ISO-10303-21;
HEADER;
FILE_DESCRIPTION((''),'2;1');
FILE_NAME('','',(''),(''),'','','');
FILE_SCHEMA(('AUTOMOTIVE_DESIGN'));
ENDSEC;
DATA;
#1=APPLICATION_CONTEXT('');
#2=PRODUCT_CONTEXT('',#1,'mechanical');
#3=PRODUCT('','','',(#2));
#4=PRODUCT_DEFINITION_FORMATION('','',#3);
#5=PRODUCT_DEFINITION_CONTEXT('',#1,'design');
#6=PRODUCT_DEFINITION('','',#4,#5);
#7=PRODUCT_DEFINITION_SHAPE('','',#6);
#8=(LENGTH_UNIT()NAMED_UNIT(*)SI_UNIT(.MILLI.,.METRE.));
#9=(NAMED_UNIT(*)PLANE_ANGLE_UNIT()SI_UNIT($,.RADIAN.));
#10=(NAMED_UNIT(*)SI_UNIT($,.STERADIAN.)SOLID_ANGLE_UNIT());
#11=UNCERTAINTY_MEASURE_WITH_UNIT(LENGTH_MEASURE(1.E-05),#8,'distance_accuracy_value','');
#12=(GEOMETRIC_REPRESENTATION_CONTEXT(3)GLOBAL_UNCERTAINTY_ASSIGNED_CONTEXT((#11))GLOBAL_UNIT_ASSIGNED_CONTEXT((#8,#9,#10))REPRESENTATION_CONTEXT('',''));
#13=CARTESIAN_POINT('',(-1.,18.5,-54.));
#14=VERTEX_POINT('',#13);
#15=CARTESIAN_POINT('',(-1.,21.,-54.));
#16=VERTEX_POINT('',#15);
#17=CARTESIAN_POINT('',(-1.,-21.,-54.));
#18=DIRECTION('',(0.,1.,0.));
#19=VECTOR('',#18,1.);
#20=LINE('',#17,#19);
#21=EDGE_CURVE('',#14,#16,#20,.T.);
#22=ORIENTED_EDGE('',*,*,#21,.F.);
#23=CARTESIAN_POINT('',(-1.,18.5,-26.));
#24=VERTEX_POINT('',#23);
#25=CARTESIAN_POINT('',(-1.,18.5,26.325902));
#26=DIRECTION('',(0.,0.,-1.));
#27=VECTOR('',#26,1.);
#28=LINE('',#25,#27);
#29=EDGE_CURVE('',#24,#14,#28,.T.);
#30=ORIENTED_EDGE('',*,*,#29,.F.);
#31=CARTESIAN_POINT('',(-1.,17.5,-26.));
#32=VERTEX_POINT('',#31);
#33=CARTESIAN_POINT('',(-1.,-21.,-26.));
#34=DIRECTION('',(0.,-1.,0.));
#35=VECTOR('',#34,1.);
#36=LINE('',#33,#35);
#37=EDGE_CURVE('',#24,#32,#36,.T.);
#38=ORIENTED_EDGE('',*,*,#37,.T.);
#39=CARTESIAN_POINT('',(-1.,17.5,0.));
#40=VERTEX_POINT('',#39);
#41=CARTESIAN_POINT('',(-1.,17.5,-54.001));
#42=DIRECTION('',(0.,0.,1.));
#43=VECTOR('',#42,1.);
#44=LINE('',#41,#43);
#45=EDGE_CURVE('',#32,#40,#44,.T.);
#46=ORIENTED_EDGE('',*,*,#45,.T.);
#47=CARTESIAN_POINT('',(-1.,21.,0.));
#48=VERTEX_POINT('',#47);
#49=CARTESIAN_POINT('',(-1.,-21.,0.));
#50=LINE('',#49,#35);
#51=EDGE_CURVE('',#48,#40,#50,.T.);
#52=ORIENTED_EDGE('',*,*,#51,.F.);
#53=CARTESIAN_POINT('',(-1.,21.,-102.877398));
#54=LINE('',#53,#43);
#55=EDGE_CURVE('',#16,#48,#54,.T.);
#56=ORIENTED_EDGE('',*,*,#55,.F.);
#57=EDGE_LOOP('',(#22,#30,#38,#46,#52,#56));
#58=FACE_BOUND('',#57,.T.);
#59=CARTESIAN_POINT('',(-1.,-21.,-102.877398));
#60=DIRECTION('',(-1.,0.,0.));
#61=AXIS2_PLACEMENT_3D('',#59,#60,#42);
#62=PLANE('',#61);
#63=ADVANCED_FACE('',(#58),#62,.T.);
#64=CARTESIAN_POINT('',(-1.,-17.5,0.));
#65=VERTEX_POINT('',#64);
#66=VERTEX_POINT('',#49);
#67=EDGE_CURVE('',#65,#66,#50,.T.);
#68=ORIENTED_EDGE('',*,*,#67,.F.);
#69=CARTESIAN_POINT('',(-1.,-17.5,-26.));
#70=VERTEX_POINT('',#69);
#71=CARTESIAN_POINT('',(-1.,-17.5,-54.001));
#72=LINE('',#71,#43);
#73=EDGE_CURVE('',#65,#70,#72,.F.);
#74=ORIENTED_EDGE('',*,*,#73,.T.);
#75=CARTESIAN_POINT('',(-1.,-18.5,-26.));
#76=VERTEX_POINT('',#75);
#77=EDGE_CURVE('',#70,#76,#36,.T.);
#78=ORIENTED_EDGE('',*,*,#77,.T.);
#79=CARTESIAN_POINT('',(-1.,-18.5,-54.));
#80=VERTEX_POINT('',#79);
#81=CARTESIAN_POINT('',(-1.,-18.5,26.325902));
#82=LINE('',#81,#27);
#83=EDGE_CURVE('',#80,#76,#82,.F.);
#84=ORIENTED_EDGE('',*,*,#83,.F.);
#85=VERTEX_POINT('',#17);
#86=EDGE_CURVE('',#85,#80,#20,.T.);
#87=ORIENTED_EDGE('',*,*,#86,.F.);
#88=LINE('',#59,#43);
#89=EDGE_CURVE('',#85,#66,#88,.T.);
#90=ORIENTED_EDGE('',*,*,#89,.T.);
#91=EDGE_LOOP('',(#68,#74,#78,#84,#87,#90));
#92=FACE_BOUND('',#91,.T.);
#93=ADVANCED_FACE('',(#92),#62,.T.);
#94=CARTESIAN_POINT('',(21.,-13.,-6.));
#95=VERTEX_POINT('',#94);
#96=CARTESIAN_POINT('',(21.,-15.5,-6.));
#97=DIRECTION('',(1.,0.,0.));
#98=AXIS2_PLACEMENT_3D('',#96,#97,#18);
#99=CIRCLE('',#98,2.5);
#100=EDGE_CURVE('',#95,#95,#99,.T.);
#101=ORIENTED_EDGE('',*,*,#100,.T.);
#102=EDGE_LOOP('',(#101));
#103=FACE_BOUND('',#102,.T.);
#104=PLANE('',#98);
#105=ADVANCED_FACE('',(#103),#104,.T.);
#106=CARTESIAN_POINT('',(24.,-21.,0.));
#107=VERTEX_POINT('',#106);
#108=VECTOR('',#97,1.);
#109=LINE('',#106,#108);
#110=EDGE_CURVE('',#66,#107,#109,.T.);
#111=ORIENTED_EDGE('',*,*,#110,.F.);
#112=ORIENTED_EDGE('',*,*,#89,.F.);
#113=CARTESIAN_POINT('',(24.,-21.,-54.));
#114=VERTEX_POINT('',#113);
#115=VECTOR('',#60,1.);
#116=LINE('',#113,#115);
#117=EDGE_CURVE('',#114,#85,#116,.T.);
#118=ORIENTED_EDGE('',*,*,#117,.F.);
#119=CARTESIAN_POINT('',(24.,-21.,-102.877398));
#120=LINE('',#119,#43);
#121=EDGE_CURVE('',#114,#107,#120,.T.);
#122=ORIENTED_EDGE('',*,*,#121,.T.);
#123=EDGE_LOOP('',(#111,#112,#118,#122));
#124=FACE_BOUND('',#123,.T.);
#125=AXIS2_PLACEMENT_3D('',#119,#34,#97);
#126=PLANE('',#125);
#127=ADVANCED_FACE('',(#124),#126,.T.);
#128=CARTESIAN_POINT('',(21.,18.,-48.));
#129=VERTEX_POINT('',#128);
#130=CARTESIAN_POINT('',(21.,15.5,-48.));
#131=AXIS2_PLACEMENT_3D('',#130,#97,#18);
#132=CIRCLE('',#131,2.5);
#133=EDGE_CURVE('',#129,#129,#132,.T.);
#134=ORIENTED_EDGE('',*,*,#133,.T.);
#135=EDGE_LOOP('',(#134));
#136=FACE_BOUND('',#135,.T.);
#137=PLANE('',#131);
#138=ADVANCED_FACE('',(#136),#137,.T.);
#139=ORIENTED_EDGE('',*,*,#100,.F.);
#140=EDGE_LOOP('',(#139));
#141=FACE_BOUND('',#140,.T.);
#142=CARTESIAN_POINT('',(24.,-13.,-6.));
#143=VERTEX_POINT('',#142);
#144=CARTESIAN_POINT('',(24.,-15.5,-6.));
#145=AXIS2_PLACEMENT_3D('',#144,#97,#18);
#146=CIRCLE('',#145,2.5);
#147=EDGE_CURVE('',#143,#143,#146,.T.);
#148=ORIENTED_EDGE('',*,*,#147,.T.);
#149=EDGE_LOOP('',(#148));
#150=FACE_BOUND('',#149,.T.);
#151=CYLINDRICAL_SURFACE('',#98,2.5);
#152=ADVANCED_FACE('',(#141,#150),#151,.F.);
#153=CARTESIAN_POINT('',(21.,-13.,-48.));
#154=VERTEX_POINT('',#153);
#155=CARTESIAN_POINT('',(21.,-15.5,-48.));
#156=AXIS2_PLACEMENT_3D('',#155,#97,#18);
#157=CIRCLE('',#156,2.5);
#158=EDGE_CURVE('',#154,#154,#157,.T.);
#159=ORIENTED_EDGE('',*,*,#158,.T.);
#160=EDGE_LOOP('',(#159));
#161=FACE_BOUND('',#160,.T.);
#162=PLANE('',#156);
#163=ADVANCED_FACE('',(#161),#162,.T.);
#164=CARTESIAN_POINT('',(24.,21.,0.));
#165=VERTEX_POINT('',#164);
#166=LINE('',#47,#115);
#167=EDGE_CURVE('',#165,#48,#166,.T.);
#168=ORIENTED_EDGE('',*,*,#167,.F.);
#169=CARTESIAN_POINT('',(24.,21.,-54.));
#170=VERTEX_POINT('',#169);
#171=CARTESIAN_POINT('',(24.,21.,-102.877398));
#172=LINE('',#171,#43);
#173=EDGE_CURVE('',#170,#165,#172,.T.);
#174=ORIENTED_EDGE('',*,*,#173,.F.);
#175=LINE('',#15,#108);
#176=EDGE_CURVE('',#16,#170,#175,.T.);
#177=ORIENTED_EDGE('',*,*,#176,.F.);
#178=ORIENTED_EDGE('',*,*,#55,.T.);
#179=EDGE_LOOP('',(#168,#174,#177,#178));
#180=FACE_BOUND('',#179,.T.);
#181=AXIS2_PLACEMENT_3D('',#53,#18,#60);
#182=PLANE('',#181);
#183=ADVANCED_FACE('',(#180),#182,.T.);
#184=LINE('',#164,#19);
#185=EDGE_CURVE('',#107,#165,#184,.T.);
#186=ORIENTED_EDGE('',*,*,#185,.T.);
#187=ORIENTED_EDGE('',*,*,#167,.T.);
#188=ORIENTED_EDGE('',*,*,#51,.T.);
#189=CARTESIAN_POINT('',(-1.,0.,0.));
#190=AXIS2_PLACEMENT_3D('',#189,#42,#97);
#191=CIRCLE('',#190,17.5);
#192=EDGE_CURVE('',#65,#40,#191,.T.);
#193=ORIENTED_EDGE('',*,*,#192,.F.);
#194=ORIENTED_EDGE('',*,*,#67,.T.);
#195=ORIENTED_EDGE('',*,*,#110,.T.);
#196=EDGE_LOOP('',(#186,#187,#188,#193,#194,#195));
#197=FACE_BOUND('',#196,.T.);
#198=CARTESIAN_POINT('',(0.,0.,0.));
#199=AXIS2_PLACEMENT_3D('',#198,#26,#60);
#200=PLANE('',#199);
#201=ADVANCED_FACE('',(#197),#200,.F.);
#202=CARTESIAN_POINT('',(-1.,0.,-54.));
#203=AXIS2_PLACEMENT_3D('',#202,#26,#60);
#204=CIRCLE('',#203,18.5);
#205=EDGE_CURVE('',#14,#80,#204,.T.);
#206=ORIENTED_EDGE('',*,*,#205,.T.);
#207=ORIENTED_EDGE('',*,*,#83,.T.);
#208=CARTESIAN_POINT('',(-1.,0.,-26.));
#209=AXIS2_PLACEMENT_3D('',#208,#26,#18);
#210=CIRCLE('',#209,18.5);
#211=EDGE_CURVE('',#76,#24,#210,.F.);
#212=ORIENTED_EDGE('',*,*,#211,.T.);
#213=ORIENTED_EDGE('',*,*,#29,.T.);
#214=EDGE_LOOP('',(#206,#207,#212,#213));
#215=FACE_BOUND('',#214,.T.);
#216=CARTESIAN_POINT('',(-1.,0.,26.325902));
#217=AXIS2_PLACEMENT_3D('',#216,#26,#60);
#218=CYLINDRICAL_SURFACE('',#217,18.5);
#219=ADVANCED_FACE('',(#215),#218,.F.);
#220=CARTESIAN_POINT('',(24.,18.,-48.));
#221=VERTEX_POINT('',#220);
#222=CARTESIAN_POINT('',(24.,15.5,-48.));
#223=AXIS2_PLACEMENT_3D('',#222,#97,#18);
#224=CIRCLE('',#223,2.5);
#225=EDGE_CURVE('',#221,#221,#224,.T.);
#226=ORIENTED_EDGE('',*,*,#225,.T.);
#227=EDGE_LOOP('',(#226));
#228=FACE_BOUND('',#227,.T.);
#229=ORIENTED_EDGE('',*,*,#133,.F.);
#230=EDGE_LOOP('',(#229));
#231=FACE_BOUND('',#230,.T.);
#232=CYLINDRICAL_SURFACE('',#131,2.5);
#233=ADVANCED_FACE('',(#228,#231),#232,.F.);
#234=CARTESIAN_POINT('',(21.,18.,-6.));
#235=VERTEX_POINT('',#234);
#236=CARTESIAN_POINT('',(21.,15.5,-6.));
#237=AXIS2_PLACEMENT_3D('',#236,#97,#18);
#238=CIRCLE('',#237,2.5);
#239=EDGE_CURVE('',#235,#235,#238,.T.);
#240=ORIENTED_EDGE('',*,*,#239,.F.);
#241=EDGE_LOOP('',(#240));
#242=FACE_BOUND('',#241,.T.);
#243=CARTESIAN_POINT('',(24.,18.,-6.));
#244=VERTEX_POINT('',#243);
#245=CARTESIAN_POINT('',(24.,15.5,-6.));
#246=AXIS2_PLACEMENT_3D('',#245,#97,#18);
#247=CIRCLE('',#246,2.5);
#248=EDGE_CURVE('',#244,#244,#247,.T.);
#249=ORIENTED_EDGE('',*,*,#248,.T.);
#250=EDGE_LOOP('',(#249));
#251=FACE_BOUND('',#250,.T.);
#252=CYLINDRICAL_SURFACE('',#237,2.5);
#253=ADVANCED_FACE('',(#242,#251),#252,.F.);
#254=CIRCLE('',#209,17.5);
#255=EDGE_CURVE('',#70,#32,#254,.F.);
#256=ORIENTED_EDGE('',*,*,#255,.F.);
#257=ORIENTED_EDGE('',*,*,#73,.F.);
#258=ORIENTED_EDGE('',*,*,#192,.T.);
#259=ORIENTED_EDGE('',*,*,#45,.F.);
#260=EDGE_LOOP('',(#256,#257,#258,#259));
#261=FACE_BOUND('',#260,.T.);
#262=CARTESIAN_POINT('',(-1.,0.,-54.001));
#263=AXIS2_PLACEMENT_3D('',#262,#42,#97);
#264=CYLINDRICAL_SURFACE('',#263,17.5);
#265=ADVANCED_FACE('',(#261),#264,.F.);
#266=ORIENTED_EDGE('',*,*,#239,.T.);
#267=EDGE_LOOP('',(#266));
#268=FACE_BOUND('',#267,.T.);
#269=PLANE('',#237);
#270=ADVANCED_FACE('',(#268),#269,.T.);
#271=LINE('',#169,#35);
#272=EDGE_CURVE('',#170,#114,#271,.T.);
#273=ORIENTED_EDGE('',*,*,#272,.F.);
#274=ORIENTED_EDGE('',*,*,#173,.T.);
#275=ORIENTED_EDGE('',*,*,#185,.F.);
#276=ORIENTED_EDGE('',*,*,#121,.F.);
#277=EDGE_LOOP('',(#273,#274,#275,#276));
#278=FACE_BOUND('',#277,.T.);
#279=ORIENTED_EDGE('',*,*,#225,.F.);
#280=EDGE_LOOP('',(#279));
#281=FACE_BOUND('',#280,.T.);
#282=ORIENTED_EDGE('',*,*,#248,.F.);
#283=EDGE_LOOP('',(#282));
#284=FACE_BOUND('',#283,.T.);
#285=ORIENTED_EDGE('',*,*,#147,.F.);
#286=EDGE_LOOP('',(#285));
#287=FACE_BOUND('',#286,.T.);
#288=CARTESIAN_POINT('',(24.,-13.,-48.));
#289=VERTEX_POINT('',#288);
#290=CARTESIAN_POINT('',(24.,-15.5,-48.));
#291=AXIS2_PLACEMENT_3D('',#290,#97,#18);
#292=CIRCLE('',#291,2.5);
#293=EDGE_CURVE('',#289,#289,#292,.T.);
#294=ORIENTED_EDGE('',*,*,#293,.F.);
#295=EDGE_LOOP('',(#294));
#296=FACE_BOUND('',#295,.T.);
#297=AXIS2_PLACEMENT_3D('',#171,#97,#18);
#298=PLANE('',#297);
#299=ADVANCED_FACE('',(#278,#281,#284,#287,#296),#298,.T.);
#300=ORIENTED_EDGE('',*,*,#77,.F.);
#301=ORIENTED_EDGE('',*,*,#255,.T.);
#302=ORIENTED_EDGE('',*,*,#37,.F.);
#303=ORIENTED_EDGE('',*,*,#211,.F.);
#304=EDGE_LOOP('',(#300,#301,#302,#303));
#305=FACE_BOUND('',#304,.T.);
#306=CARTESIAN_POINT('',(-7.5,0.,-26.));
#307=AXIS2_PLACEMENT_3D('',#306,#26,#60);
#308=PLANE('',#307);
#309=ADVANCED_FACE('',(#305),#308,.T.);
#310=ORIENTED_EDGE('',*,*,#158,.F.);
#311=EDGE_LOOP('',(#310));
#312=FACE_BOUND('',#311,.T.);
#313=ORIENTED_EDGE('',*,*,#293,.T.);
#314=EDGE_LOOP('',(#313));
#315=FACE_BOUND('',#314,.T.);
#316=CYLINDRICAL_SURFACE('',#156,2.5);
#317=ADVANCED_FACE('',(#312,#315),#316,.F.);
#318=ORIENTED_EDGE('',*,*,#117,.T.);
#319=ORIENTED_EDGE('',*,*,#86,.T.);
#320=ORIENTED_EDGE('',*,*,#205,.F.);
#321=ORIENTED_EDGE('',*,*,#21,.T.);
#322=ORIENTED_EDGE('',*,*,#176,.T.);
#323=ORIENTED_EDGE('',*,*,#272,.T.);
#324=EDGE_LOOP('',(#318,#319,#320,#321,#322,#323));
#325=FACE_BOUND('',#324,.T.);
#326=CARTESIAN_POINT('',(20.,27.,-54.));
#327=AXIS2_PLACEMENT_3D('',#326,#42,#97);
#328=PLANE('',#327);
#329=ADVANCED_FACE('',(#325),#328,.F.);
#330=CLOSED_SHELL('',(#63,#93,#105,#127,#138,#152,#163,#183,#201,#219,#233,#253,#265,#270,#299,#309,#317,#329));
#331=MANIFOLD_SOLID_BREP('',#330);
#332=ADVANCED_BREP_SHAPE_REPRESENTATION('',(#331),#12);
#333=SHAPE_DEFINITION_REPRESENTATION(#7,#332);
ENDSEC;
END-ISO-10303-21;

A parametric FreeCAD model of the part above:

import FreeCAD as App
import Part
import Sketcher
from FreeCAD import Vector
Q = App.Units.Quantity


def add_polygon(sketch, points):
    """Adds a closed chain of lines whose ends are joined by coincident constraints."""
    first, n = sketch.GeometryCount, len(points)
    for a, b in zip(points, points[1:] + points[:1]):
        sketch.addGeometry(Part.LineSegment(App.Vector(*a, 0), App.Vector(*b, 0)), False)
    for i in range(n):
        sketch.addConstraint(Sketcher.Constraint("Coincident", first + i, 2, first + (i + 1) % n, 1))

doc = App.newDocument("Part")
body = doc.addObject("PartDesign::Body", "Body")

sketch1 = body.newObject("Sketcher::SketchObject", "Sketch")
sketch1.AttachmentSupport = (doc.getObject("XY_Plane"), [""])
sketch1.MapMode = "FlatFace"
add_polygon(sketch1, [(-1, 21), (-1, -21), (24, -21), (24, 21)])
sketch1.addConstraint([
    Sketcher.Constraint("Vertical", 0),
    Sketcher.Constraint("Horizontal", 1),
    Sketcher.Constraint("Vertical", 2),
    Sketcher.Constraint("Horizontal", 3),
    Sketcher.Constraint("DistanceX", 1, 1, 1, 2, Q("25 mm")),
    Sketcher.Constraint("DistanceY", 0, 2, 0, 1, Q("42 mm")),
    Sketcher.Constraint("DistanceX", 0, 2, -1, 1, Q("1 mm")),
    Sketcher.Constraint("DistanceY", 0, 2, -1, 1, Q("21 mm")),
])
pad1 = body.newObject("PartDesign::Pad", "Pad")
pad1.Profile = sketch1
pad1.Length = 54
pad1.Reversed = True

sketch2 = body.newObject("Sketcher::SketchObject", "Sketch001")
sketch2.AttachmentSupport = (doc.getObject("XY_Plane"), [""])
sketch2.MapMode = "FlatFace"
sketch2.AttachmentOffset = App.Placement(Vector(0, 0, -26), App.Rotation())
sketch2.addGeometry(Part.Circle(Vector(-1, 0, 0), Vector(0, 0, 1), 18.5), False)
sketch2.addConstraint([
    Sketcher.Constraint("PointOnObject", 0, 3, -1),
    Sketcher.Constraint("Diameter", 0, Q("37 mm")),
    Sketcher.Constraint("DistanceX", 0, 3, -1, 1, Q("1 mm")),
])
pocket1 = body.newObject("PartDesign::Pocket", "Pocket")
pocket1.Profile = sketch2
pocket1.Length = 28

sketch3 = body.newObject("Sketcher::SketchObject", "Sketch002")
sketch3.AttachmentSupport = (doc.getObject("XY_Plane"), [""])
sketch3.MapMode = "FlatFace"
sketch3.addGeometry(Part.Circle(Vector(-1, 0, 0), Vector(0, 0, 1), 17.5), False)
sketch3.addConstraint([
    Sketcher.Constraint("PointOnObject", 0, 3, -1),
    Sketcher.Constraint("Diameter", 0, Q("35 mm")),
    Sketcher.Constraint("DistanceX", 0, 3, -1, 1, Q("1 mm")),
])
pocket2 = body.newObject("PartDesign::Pocket", "Pocket001")
pocket2.Profile = sketch3
pocket2.Type = "UpToFirst"

sketch4 = body.newObject("Sketcher::SketchObject", "Sketch003")
sketch4.AttachmentSupport = (doc.getObject("YZ_Plane"), [""])
sketch4.MapMode = "FlatFace"
sketch4.AttachmentOffset = App.Placement(Vector(0, 0, 24), App.Rotation())
sketch4.addGeometry([
    Part.Circle(Vector(15.5, -6, 0), Vector(0, 0, 1), 2.5),
    Part.Circle(Vector(15.5, -48, 0), Vector(0, 0, 1), 2.5),
    Part.Circle(Vector(-15.5, -6, 0), Vector(0, 0, 1), 2.5),
    Part.Circle(Vector(-15.5, -48, 0), Vector(0, 0, 1), 2.5),
], False)
sketch4.addConstraint([
    Sketcher.Constraint("Equal", 0, 1),
    Sketcher.Constraint("Equal", 1, 2),
    Sketcher.Constraint("Equal", 2, 3),
    Sketcher.Constraint("Symmetric", 0, 3, 2, 3, -2),
    Sketcher.Constraint("Symmetric", 1, 3, 3, 3, -2),
    Sketcher.Constraint("Vertical", 0, 3, 1, 3),
    Sketcher.Constraint("Diameter", 0, Q("5 mm")),
    Sketcher.Constraint("DistanceY", 0, 3, -1, 1, Q("6 mm")),
    Sketcher.Constraint("DistanceY", 1, 3, -1, 1, Q("48 mm")),
    Sketcher.Constraint("DistanceX", 2, 3, 0, 3, Q("31 mm")),
])
pocket3 = body.newObject("PartDesign::Pocket", "Pocket002")
pocket3.Profile = sketch4
pocket3.Length = 3

doc.recompute()
